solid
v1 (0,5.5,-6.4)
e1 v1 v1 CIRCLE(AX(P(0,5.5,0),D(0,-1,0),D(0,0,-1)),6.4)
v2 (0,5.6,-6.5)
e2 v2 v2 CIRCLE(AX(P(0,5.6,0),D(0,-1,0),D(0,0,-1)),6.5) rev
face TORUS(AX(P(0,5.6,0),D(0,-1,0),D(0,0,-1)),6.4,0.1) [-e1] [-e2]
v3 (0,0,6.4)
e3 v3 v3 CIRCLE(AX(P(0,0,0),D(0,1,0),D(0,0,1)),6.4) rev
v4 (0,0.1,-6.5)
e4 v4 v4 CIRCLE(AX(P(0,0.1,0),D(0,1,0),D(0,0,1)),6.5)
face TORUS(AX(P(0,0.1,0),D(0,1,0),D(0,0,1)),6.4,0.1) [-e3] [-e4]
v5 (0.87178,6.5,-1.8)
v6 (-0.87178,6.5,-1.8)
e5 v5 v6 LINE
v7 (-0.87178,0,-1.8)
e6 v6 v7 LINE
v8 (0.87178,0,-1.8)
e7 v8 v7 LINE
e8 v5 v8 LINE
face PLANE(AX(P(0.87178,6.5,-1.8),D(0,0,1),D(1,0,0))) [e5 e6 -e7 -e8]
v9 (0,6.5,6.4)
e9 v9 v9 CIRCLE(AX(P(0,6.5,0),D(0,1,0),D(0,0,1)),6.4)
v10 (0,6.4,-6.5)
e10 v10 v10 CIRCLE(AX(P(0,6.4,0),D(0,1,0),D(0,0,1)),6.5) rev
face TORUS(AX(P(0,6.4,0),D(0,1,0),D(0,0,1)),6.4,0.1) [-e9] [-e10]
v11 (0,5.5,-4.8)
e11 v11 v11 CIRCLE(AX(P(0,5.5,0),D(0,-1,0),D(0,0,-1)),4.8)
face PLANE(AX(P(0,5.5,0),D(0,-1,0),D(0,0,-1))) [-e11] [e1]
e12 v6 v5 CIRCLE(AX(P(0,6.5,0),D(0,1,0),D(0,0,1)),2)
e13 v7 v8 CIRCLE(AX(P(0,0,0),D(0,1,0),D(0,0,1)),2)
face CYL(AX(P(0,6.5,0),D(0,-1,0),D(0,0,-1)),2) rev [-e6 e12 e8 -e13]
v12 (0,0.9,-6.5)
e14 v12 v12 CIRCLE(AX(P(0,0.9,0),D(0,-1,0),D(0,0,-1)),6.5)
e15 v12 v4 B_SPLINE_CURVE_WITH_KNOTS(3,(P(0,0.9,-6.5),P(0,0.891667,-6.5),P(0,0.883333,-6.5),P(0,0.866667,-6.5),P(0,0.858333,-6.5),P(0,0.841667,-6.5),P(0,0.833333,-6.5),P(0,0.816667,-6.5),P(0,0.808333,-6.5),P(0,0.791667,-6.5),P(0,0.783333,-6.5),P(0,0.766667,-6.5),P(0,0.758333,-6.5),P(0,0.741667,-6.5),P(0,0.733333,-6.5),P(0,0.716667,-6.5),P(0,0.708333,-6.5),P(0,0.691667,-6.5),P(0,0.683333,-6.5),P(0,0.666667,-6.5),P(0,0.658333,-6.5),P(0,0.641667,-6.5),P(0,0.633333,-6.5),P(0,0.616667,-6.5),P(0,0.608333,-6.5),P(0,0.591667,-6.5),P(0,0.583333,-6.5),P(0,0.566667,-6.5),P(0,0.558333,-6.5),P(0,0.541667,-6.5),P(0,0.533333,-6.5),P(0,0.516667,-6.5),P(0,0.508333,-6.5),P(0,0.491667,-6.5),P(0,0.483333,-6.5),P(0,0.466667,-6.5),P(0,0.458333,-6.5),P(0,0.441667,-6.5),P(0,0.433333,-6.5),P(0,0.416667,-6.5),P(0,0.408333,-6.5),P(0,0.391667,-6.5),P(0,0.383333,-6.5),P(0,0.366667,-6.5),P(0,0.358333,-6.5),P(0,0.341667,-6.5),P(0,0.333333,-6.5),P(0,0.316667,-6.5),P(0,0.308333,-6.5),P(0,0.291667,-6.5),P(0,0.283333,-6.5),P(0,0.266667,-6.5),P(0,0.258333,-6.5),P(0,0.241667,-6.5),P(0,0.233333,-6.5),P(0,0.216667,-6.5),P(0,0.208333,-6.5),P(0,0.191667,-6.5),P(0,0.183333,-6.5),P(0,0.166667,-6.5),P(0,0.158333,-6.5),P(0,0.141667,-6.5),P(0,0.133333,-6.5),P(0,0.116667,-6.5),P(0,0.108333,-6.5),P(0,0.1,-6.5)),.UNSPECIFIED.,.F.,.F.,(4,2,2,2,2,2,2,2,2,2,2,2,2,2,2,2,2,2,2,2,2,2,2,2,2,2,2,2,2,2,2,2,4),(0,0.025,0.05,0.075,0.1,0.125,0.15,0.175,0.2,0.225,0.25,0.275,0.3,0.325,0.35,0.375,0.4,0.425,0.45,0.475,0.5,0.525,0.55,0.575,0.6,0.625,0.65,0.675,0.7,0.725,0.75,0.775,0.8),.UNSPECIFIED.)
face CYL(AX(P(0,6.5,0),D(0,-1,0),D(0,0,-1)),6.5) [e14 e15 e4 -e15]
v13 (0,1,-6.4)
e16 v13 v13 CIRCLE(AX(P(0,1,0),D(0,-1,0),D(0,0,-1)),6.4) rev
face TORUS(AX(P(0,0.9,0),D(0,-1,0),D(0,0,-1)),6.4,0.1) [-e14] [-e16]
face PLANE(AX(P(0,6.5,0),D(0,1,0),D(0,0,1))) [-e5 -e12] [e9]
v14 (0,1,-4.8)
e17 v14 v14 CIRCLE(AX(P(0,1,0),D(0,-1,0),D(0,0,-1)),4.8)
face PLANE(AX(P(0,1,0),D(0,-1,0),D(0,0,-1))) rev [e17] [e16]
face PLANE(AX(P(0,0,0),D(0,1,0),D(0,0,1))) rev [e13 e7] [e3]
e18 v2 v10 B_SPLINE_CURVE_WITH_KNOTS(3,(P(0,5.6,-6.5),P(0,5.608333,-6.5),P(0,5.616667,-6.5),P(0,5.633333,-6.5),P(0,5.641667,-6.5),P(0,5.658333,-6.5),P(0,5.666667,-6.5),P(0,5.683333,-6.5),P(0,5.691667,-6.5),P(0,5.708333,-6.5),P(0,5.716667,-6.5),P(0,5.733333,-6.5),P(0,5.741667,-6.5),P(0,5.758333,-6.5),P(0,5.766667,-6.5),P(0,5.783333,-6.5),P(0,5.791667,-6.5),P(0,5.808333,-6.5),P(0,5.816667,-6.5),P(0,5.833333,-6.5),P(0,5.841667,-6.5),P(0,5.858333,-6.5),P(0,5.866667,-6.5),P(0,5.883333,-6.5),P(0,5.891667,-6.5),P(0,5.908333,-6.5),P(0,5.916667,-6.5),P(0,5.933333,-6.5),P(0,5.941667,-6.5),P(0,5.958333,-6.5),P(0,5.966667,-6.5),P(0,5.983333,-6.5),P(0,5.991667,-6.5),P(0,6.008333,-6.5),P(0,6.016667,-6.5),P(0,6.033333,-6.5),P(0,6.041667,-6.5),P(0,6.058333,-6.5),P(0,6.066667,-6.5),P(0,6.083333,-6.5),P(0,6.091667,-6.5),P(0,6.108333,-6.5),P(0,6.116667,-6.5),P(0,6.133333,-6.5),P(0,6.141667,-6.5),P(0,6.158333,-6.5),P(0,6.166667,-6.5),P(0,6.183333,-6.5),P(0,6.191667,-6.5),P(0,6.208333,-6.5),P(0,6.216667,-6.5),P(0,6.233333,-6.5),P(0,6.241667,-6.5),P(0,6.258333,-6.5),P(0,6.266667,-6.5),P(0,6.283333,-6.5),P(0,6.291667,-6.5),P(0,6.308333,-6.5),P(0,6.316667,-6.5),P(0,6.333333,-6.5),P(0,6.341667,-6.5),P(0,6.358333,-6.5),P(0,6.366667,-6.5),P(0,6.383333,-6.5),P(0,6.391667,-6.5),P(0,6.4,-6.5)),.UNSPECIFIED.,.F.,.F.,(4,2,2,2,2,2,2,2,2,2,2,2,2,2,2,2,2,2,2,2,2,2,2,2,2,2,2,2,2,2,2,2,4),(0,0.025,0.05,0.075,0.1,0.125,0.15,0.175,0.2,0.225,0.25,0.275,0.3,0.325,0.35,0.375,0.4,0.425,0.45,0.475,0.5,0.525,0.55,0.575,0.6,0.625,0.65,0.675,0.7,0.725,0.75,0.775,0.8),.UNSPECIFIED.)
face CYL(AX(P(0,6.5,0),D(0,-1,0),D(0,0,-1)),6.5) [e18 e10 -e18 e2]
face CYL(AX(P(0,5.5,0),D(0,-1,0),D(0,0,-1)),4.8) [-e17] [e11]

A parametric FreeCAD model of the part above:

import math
import FreeCAD as App
import Part
import Sketcher
from FreeCAD import Vector
Q = App.Units.Quantity


def edges_at(feature, points):
    """Names of the edges that pass closest to the given points."""
    edges = feature.Shape.Edges
    near = lambda p: min(range(len(edges)), key=lambda i: edges[i].distToShape(Part.Vertex(*p))[0])
    return sorted({f"Edge{near(p) + 1}" for p in points})

doc = App.newDocument("Part")
body = doc.addObject("PartDesign::Body", "Body")

# Sketch on XZ plane
sketch1 = body.newObject("Sketcher::SketchObject", "Sketch")
sketch1.AttachmentSupport = (doc.getObject("XZ_Plane"), [""])
sketch1.MapMode = "FlatFace"
sketch1.addGeometry(Part.Circle(Vector(0, 0, 0), Vector(0, 0, 1), 6.5), False)
sketch1.addGeometry(Part.LineSegment(Vector(-0.87178, -1.8, 0), Vector(0.87178, -1.8, 0)), False)
sketch1.addGeometry(Part.ArcOfCircle(Part.Circle(Vector(0, 0, 0), Vector(0, 0, 1), 2), math.radians(-64.158067), math.radians(244.158067)), False)
sketch1.addConstraint(Sketcher.Constraint("Coincident", 1, 1, 2, 2))
sketch1.addConstraint(Sketcher.Constraint("Coincident", 2, 1, 1, 2))
sketch1.addConstraint(Sketcher.Constraint("Horizontal", 1))
sketch1.addConstraint(Sketcher.Constraint("Coincident", 0, 3, -1, 1))
sketch1.addConstraint(Sketcher.Constraint("Coincident", 2, 3, -1, 1))
sketch1.addConstraint(Sketcher.Constraint("Diameter", 0, Q("13 mm")))
sketch1.addConstraint(Sketcher.Constraint("Radius", 2, Q("2 mm")))
sketch1.addConstraint(Sketcher.Constraint("DistanceY", 1, 1, -1, 1, Q("1.8 mm")))
pad1 = body.newObject("PartDesign::Pad", "Pad")
pad1.Profile = sketch1
pad1.Length = 6.5
pad1.Reversed = True

# Sketch on XZ plane
sketch2 = body.newObject("Sketcher::SketchObject", "Sketch001")
sketch2.AttachmentSupport = (doc.getObject("XZ_Plane"), [""])
sketch2.MapMode = "FlatFace"
sketch2.AttachmentOffset = App.Placement(Vector(0, 0, -1), App.Rotation())
sketch2.addGeometry(Part.Circle(Vector(0, 0, 0), Vector(0, 0, 1), 6.5), False)
sketch2.addGeometry(Part.Circle(Vector(0, 0, 0), Vector(0, 0, 1), 4.8), False)
sketch2.addConstraint(Sketcher.Constraint("Coincident", 0, 3, -1, 1))
sketch2.addConstraint(Sketcher.Constraint("Coincident", 1, 3, -1, 1))
sketch2.addConstraint(Sketcher.Constraint("Diameter", 0, Q("13 mm")))
sketch2.addConstraint(Sketcher.Constraint("Diameter", 1, Q("9.6 mm")))
pocket1 = body.newObject("PartDesign::Pocket", "Pocket")
pocket1.Profile = sketch2
pocket1.Length = 4.5
doc.recompute()

fillet = body.newObject("PartDesign::Fillet", "Fillet")
fillet.Base = (pocket1, edges_at(pocket1, [
    (0, 5.5, 6.5),
    (0, 1, 6.5),
    (0, 0, 6.5),
    (0, 6.5, 6.5),
]))
fillet.Radius = 0.1

doc.recompute()
